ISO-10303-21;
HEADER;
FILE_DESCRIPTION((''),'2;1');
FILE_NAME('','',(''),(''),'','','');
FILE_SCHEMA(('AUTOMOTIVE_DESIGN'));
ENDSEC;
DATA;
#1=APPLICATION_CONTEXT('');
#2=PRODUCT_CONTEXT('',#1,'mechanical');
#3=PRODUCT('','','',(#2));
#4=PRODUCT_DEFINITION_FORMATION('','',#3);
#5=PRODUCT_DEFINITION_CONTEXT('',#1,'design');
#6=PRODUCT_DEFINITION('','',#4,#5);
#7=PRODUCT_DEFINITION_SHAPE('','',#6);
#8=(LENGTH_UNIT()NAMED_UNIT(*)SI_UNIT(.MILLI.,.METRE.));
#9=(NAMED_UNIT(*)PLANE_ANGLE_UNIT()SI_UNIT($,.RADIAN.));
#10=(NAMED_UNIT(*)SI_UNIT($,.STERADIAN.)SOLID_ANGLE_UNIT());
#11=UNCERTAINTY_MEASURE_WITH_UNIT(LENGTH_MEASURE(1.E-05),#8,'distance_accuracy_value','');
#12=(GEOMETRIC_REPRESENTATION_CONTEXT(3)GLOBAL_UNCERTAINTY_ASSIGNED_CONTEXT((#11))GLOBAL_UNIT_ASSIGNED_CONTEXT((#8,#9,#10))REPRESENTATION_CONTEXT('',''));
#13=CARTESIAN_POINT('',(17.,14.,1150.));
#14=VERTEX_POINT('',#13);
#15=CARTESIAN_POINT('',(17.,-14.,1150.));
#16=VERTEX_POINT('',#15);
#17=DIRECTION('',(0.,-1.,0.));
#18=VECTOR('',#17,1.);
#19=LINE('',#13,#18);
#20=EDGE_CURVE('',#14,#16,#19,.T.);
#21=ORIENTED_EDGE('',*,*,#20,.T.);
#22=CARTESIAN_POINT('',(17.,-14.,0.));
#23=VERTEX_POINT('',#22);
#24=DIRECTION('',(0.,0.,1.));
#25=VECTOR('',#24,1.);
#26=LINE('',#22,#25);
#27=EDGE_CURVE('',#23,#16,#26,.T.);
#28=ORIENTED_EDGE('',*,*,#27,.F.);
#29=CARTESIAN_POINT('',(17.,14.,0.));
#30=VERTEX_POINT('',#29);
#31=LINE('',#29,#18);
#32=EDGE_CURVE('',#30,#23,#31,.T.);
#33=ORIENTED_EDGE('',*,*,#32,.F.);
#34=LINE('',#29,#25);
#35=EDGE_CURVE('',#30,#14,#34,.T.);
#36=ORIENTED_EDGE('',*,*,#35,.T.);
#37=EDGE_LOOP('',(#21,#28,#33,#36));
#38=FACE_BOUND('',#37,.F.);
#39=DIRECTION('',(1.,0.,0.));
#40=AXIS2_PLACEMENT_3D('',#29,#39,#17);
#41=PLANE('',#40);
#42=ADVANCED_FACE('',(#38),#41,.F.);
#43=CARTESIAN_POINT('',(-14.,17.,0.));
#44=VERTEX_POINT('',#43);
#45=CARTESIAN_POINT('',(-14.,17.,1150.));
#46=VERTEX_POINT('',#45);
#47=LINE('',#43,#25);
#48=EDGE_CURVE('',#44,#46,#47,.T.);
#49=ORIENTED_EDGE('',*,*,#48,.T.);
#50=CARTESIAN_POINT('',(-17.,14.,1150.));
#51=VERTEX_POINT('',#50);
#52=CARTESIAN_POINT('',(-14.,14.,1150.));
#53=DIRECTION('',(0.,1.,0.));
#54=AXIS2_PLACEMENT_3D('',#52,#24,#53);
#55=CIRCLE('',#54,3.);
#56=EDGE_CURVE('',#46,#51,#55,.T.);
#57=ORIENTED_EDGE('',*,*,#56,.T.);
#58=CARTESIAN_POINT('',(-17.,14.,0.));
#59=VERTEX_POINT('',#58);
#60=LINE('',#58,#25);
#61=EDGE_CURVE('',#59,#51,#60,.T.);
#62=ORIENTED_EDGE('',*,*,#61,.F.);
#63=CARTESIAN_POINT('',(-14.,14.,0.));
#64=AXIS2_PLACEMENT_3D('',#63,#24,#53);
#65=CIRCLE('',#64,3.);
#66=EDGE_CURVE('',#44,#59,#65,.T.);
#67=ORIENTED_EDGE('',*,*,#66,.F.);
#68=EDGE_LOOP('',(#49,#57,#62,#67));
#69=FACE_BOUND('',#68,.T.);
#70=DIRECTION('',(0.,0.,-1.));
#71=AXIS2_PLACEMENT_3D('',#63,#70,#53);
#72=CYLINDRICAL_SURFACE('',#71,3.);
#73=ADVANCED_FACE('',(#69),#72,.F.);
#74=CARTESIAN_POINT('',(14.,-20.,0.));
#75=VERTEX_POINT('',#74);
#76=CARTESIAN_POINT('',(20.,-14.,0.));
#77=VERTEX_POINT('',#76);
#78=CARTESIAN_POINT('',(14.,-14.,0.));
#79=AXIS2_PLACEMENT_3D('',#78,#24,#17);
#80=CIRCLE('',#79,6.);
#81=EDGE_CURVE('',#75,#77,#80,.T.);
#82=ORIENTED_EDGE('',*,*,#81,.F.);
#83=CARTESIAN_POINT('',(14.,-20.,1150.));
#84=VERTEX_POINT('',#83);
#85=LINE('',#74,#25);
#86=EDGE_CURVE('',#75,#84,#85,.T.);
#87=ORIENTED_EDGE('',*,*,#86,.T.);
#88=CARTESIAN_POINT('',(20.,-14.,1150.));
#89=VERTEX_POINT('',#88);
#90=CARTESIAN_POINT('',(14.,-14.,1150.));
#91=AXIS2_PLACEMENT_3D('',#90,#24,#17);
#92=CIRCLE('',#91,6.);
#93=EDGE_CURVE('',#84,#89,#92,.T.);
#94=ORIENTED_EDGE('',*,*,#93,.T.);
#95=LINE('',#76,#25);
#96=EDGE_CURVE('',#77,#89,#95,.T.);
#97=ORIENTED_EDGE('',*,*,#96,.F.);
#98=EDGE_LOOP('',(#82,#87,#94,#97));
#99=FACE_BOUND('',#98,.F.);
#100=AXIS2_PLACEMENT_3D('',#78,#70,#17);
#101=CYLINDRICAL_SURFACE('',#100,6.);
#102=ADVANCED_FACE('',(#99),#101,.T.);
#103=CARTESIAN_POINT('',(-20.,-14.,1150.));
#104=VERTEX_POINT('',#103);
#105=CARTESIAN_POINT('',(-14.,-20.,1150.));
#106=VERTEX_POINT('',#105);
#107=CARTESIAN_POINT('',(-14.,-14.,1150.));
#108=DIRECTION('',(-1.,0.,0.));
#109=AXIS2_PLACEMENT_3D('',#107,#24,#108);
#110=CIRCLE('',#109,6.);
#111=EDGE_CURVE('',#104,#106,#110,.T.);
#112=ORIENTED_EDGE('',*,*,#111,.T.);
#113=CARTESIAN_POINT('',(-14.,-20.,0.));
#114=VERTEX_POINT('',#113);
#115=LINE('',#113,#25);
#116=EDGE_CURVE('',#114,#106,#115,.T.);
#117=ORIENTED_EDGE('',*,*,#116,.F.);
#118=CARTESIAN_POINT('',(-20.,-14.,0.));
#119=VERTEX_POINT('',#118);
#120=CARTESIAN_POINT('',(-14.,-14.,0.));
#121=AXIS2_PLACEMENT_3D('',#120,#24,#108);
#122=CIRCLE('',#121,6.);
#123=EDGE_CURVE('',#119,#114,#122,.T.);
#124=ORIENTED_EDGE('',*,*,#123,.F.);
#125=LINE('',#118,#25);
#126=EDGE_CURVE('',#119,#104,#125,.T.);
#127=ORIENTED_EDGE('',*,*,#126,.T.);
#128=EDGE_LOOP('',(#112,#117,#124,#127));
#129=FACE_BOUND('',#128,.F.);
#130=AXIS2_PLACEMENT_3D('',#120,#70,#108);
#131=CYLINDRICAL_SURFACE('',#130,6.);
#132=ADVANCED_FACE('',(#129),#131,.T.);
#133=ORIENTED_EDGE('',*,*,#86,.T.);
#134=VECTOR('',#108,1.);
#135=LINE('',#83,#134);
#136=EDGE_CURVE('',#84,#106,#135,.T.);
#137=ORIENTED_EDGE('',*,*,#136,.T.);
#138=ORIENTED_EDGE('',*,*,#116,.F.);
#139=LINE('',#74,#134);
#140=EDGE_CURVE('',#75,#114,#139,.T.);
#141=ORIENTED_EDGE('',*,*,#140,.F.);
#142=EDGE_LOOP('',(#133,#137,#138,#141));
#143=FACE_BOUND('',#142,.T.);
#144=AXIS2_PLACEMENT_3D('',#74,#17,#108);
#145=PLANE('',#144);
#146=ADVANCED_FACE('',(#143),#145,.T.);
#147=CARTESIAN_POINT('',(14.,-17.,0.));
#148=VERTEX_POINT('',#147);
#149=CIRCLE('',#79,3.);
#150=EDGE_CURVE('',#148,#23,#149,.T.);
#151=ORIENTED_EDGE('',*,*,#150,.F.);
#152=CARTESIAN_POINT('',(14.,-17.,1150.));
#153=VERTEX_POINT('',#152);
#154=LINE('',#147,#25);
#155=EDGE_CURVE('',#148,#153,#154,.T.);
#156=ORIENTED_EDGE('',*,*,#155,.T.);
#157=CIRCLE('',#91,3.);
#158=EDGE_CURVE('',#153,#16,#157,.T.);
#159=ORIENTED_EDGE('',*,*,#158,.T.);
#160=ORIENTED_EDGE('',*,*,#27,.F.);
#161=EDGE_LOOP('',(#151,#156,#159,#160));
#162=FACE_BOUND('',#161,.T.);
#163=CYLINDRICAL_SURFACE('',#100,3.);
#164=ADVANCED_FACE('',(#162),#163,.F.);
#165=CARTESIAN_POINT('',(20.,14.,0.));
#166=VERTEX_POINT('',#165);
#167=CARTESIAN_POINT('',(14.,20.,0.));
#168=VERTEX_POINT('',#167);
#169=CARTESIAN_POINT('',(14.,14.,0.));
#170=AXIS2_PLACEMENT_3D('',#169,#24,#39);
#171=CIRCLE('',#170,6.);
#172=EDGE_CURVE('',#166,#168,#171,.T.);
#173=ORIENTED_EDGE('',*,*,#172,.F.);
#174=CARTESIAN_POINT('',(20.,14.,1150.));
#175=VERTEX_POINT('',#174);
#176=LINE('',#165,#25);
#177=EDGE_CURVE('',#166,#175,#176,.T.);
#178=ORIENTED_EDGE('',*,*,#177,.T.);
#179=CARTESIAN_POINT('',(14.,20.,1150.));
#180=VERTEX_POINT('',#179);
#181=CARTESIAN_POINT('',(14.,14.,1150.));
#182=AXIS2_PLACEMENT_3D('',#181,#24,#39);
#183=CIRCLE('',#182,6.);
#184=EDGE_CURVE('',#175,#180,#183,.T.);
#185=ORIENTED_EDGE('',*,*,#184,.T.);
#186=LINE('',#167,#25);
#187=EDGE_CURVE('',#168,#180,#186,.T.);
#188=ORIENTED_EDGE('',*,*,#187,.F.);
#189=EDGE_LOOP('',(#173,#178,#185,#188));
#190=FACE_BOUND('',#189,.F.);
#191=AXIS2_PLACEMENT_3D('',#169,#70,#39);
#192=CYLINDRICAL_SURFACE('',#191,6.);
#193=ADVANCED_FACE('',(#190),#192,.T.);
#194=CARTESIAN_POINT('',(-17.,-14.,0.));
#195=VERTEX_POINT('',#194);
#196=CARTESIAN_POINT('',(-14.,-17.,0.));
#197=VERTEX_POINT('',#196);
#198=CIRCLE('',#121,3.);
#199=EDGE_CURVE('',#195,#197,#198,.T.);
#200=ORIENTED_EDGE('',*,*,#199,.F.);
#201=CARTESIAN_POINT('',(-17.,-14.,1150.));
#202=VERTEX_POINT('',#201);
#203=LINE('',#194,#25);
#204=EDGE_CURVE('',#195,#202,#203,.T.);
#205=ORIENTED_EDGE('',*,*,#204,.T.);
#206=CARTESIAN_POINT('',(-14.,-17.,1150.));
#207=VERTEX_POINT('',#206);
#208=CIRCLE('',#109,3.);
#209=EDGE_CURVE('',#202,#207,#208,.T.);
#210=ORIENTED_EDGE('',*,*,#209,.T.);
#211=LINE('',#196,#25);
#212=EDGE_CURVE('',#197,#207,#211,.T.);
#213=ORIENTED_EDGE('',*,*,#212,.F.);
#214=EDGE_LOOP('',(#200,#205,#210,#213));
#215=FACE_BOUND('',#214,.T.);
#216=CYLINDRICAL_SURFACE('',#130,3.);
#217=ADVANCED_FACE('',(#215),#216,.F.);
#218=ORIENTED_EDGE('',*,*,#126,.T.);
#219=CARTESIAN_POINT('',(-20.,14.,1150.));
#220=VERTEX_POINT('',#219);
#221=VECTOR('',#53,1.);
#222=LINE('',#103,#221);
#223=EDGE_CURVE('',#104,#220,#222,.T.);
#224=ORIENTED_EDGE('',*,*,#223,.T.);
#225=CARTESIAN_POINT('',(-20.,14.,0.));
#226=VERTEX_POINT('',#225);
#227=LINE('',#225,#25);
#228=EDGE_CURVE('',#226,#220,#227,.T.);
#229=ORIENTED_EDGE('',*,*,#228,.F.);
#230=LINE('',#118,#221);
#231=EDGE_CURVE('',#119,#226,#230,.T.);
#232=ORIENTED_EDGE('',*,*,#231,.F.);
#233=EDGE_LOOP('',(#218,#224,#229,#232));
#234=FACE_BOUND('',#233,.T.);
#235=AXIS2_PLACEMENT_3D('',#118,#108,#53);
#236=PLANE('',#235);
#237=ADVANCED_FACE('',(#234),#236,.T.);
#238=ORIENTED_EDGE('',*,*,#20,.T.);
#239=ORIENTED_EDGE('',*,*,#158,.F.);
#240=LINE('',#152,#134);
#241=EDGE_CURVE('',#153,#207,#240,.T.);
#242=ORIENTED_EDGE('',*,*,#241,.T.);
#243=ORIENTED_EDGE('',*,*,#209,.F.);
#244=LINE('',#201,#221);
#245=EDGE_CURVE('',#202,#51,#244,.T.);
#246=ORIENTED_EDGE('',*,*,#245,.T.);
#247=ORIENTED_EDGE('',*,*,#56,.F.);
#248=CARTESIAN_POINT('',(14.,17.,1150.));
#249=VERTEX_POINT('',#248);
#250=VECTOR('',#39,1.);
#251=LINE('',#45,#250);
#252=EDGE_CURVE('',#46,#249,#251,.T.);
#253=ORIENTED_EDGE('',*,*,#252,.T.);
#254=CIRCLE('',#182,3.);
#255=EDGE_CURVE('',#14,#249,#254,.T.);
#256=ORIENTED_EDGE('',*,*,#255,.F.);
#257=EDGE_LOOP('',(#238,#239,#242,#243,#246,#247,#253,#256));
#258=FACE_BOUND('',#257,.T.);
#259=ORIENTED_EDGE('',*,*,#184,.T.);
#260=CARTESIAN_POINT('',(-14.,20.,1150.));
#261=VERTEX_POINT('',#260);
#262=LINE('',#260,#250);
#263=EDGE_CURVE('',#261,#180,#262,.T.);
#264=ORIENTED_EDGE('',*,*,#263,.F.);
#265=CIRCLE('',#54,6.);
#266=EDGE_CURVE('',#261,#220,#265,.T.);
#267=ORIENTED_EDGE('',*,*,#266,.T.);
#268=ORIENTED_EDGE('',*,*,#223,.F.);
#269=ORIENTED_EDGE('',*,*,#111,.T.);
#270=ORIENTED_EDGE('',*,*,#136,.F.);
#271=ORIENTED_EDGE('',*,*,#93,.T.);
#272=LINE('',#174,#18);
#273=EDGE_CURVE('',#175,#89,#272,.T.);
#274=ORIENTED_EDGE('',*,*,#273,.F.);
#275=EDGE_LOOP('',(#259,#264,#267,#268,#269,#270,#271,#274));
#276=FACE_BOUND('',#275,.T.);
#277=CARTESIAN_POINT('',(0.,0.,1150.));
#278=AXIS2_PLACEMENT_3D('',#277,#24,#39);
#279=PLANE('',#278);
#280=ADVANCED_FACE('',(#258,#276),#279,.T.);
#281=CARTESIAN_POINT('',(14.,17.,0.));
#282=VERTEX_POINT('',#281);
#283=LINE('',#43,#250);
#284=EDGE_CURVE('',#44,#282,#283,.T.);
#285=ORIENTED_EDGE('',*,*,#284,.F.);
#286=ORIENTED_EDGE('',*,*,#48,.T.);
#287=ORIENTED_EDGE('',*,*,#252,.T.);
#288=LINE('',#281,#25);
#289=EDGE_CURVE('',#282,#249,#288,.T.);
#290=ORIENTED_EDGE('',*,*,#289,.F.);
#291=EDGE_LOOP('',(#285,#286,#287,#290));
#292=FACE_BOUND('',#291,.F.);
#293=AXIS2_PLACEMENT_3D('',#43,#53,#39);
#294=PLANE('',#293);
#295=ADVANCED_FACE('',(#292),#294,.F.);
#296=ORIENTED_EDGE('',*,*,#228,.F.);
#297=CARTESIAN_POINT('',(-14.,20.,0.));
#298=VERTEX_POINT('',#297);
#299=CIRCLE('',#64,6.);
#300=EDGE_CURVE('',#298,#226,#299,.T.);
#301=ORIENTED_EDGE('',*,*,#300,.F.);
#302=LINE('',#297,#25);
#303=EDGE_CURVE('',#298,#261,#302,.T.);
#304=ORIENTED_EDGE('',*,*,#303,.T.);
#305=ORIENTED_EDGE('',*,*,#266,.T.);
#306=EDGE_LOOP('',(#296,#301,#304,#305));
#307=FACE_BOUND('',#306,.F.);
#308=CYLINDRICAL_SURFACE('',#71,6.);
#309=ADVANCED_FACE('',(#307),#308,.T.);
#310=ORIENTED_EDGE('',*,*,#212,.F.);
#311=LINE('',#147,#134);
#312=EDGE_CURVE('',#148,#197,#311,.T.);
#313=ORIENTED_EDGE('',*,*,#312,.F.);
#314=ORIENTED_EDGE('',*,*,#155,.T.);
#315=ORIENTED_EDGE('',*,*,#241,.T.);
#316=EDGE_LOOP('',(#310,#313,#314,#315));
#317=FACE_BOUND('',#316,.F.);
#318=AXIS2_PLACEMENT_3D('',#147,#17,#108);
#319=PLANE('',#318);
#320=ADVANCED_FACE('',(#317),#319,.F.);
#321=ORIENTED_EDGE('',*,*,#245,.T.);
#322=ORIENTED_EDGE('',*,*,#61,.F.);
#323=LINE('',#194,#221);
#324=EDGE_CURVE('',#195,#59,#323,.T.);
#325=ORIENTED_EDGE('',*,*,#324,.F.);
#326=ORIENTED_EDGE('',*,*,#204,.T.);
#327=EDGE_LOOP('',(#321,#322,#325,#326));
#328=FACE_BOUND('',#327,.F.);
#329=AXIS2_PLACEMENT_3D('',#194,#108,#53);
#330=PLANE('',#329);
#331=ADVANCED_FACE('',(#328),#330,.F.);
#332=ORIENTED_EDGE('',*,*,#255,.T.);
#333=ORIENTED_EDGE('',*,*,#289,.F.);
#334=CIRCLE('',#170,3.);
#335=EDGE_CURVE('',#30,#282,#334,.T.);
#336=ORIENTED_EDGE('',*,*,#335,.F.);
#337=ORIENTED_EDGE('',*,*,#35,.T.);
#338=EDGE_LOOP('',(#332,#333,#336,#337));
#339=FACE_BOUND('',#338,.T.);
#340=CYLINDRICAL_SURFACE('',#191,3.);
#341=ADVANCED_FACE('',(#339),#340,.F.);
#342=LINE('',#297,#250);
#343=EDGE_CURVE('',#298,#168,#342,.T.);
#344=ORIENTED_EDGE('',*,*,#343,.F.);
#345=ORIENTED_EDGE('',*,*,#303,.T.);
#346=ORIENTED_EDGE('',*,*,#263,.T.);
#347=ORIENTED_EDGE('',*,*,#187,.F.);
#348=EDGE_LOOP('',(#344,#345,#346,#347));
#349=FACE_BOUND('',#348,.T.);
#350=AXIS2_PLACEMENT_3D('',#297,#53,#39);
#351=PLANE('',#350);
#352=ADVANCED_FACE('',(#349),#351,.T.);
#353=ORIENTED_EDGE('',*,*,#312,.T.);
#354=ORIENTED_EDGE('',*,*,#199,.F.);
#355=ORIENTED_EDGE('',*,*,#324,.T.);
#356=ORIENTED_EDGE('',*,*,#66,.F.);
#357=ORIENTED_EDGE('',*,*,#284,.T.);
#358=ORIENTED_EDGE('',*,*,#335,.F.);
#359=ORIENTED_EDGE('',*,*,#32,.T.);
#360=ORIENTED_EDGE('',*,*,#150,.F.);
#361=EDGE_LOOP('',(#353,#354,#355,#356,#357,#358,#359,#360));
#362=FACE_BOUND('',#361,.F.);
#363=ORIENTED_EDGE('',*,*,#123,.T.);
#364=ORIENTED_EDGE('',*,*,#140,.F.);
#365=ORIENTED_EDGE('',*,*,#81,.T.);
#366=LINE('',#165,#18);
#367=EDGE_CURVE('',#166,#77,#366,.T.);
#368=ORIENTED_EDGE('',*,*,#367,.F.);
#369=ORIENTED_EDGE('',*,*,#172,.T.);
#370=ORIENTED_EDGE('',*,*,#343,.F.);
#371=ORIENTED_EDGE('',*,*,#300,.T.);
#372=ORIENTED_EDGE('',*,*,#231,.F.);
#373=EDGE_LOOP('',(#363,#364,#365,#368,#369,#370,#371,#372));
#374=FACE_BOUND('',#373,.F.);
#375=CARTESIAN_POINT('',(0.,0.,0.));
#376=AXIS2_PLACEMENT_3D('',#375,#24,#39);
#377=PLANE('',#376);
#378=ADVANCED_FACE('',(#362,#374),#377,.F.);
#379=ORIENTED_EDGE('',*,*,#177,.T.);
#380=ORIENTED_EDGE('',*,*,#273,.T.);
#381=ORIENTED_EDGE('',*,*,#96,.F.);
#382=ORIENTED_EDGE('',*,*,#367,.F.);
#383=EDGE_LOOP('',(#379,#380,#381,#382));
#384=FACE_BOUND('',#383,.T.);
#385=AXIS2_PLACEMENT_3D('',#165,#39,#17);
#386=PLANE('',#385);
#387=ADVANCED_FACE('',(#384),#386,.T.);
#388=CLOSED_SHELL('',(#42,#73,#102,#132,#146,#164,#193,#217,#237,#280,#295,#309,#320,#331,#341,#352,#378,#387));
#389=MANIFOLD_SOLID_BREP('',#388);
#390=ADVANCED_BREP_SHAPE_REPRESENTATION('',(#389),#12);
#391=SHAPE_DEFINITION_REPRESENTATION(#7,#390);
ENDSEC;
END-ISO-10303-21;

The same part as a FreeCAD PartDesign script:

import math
import FreeCAD as App
import Part
import Sketcher
from FreeCAD import Vector

doc = App.newDocument("Part")
params = doc.addObject("Spreadsheet::Sheet", "Params")
for row, (alias, value) in enumerate([
    ("sketch1_radius", "6 mm"),
    ("sketch1_radius2", "3 mm"),
    ("pad1_length", "1150 mm"),
], start=1):
    params.set(f"A{row}", alias)
    params.set(f"B{row}", "=" + value)
    params.setAlias(f"B{row}", alias)

body = doc.addObject("PartDesign::Body", "Body")

sketch1 = body.newObject("Sketcher::SketchObject", "Sketch")
sketch1.AttachmentSupport = (doc.getObject("XY_Plane"), [""])
sketch1.MapMode = "FlatFace"
sketch1.addGeometry(Part.LineSegment(Vector(-20, 14, 0), Vector(-20, -14, 0)), False)
sketch1.addGeometry(Part.ArcOfCircle(Part.Circle(Vector(-14, -14, 0), Vector(0, 0, 1), 6), math.radians(180), math.radians(270)), False)
sketch1.addGeometry(Part.LineSegment(Vector(-14, -20, 0), Vector(14, -20, 0)), False)
sketch1.addGeometry(Part.ArcOfCircle(Part.Circle(Vector(14, -14, 0), Vector(0, 0, 1), 6), math.radians(-90), math.radians(0)), False)
sketch1.addGeometry(Part.LineSegment(Vector(20, -14, 0), Vector(20, 14, 0)), False)
sketch1.addGeometry(Part.ArcOfCircle(Part.Circle(Vector(14, 14, 0), Vector(0, 0, 1), 6), math.radians(0), math.radians(90)), False)
sketch1.addGeometry(Part.LineSegment(Vector(14, 20, 0), Vector(-14, 20, 0)), False)
sketch1.addGeometry(Part.ArcOfCircle(Part.Circle(Vector(-14, 14, 0), Vector(0, 0, 1), 6), math.radians(90), math.radians(180)), False)
sketch1.addGeometry(Part.ArcOfCircle(Part.Circle(Vector(-14, 14, 0), Vector(0, 0, 1), 3), math.radians(90), math.radians(180)), False)
sketch1.addGeometry(Part.LineSegment(Vector(-14, 17, 0), Vector(14, 17, 0)), False)
sketch1.addGeometry(Part.ArcOfCircle(Part.Circle(Vector(14, 14, 0), Vector(0, 0, 1), 3), math.radians(0), math.radians(90)), False)
sketch1.addGeometry(Part.LineSegment(Vector(17, 14, 0), Vector(17, -14, 0)), False)
sketch1.addGeometry(Part.ArcOfCircle(Part.Circle(Vector(14, -14, 0), Vector(0, 0, 1), 3), math.radians(-90), math.radians(0)), False)
sketch1.addGeometry(Part.LineSegment(Vector(14, -17, 0), Vector(-14, -17, 0)), False)
sketch1.addGeometry(Part.ArcOfCircle(Part.Circle(Vector(-14, -14, 0), Vector(0, 0, 1), 3), math.radians(180), math.radians(270)), False)
sketch1.addGeometry(Part.LineSegment(Vector(-17, -14, 0), Vector(-17, 14, 0)), False)
sketch1.addConstraint(Sketcher.Constraint("Tangent", 0, 2, 1, 1))
sketch1.addConstraint(Sketcher.Constraint("Tangent", 1, 2, 2, 1))
sketch1.addConstraint(Sketcher.Constraint("Tangent", 2, 2, 3, 1))
sketch1.addConstraint(Sketcher.Constraint("Tangent", 3, 2, 4, 1))
sketch1.addConstraint(Sketcher.Constraint("Tangent", 4, 2, 5, 1))
sketch1.addConstraint(Sketcher.Constraint("Tangent", 5, 2, 6, 1))
sketch1.addConstraint(Sketcher.Constraint("Tangent", 6, 2, 7, 1))
sketch1.addConstraint(Sketcher.Constraint("Tangent", 7, 2, 0, 1))
sketch1.addConstraint(Sketcher.Constraint("Tangent", 8, 1, 9, 1))
sketch1.addConstraint(Sketcher.Constraint("Tangent", 9, 2, 10, 2))
sketch1.addConstraint(Sketcher.Constraint("Tangent", 10, 1, 11, 1))
sketch1.addConstraint(Sketcher.Constraint("Tangent", 11, 2, 12, 2))
sketch1.addConstraint(Sketcher.Constraint("Tangent", 12, 1, 13, 1))
sketch1.addConstraint(Sketcher.Constraint("Tangent", 13, 2, 14, 2))
sketch1.addConstraint(Sketcher.Constraint("Tangent", 14, 1, 15, 1))
sketch1.addConstraint(Sketcher.Constraint("Tangent", 15, 2, 8, 2))
sketch1.addConstraint(Sketcher.Constraint("Vertical", 0))
sketch1.addConstraint(Sketcher.Constraint("Horizontal", 2))
sketch1.addConstraint(Sketcher.Constraint("Vertical", 4))
sketch1.addConstraint(Sketcher.Constraint("Horizontal", 6))
sketch1.addConstraint(Sketcher.Constraint("Horizontal", 9))
sketch1.addConstraint(Sketcher.Constraint("Vertical", 11))
sketch1.addConstraint(Sketcher.Constraint("Horizontal", 13))
sketch1.addConstraint(Sketcher.Constraint("Vertical", 15))
sketch1.addConstraint(Sketcher.Constraint("Coincident", 8, 3, 7, 3))
sketch1.addConstraint(Sketcher.Constraint("Coincident", 10, 3, 5, 3))
sketch1.addConstraint(Sketcher.Constraint("Coincident", 12, 3, 3, 3))
sketch1.addConstraint(Sketcher.Constraint("Equal", 1, 3))
sketch1.addConstraint(Sketcher.Constraint("Equal", 3, 5))
sketch1.addConstraint(Sketcher.Constraint("Equal", 5, 7))
sketch1.addConstraint(Sketcher.Constraint("Equal", 12, 14))
sketch1.addConstraint(Sketcher.Constraint("Symmetric", 1, 3, 5, 3, -1, 1))
sketch1.addConstraint(Sketcher.Constraint("Equal", 13, 0))
sketch1.addConstraint(Sketcher.Constraint("Radius", 1, 6.0))
sketch1.addConstraint(Sketcher.Constraint("Radius", 8, 3.0))
sketch1.addConstraint(Sketcher.Constraint("DistanceX", 0, 2, -1, 1, 20.0))
sketch1.setExpression("Constraints[33]", "Params.sketch1_radius")
sketch1.setExpression("Constraints[34]", "Params.sketch1_radius2")
pad1 = body.newObject("PartDesign::Pad", "Pad")
pad1.Profile = sketch1
pad1.setExpression("Length", "Params.pad1_length")

doc.recompute()
